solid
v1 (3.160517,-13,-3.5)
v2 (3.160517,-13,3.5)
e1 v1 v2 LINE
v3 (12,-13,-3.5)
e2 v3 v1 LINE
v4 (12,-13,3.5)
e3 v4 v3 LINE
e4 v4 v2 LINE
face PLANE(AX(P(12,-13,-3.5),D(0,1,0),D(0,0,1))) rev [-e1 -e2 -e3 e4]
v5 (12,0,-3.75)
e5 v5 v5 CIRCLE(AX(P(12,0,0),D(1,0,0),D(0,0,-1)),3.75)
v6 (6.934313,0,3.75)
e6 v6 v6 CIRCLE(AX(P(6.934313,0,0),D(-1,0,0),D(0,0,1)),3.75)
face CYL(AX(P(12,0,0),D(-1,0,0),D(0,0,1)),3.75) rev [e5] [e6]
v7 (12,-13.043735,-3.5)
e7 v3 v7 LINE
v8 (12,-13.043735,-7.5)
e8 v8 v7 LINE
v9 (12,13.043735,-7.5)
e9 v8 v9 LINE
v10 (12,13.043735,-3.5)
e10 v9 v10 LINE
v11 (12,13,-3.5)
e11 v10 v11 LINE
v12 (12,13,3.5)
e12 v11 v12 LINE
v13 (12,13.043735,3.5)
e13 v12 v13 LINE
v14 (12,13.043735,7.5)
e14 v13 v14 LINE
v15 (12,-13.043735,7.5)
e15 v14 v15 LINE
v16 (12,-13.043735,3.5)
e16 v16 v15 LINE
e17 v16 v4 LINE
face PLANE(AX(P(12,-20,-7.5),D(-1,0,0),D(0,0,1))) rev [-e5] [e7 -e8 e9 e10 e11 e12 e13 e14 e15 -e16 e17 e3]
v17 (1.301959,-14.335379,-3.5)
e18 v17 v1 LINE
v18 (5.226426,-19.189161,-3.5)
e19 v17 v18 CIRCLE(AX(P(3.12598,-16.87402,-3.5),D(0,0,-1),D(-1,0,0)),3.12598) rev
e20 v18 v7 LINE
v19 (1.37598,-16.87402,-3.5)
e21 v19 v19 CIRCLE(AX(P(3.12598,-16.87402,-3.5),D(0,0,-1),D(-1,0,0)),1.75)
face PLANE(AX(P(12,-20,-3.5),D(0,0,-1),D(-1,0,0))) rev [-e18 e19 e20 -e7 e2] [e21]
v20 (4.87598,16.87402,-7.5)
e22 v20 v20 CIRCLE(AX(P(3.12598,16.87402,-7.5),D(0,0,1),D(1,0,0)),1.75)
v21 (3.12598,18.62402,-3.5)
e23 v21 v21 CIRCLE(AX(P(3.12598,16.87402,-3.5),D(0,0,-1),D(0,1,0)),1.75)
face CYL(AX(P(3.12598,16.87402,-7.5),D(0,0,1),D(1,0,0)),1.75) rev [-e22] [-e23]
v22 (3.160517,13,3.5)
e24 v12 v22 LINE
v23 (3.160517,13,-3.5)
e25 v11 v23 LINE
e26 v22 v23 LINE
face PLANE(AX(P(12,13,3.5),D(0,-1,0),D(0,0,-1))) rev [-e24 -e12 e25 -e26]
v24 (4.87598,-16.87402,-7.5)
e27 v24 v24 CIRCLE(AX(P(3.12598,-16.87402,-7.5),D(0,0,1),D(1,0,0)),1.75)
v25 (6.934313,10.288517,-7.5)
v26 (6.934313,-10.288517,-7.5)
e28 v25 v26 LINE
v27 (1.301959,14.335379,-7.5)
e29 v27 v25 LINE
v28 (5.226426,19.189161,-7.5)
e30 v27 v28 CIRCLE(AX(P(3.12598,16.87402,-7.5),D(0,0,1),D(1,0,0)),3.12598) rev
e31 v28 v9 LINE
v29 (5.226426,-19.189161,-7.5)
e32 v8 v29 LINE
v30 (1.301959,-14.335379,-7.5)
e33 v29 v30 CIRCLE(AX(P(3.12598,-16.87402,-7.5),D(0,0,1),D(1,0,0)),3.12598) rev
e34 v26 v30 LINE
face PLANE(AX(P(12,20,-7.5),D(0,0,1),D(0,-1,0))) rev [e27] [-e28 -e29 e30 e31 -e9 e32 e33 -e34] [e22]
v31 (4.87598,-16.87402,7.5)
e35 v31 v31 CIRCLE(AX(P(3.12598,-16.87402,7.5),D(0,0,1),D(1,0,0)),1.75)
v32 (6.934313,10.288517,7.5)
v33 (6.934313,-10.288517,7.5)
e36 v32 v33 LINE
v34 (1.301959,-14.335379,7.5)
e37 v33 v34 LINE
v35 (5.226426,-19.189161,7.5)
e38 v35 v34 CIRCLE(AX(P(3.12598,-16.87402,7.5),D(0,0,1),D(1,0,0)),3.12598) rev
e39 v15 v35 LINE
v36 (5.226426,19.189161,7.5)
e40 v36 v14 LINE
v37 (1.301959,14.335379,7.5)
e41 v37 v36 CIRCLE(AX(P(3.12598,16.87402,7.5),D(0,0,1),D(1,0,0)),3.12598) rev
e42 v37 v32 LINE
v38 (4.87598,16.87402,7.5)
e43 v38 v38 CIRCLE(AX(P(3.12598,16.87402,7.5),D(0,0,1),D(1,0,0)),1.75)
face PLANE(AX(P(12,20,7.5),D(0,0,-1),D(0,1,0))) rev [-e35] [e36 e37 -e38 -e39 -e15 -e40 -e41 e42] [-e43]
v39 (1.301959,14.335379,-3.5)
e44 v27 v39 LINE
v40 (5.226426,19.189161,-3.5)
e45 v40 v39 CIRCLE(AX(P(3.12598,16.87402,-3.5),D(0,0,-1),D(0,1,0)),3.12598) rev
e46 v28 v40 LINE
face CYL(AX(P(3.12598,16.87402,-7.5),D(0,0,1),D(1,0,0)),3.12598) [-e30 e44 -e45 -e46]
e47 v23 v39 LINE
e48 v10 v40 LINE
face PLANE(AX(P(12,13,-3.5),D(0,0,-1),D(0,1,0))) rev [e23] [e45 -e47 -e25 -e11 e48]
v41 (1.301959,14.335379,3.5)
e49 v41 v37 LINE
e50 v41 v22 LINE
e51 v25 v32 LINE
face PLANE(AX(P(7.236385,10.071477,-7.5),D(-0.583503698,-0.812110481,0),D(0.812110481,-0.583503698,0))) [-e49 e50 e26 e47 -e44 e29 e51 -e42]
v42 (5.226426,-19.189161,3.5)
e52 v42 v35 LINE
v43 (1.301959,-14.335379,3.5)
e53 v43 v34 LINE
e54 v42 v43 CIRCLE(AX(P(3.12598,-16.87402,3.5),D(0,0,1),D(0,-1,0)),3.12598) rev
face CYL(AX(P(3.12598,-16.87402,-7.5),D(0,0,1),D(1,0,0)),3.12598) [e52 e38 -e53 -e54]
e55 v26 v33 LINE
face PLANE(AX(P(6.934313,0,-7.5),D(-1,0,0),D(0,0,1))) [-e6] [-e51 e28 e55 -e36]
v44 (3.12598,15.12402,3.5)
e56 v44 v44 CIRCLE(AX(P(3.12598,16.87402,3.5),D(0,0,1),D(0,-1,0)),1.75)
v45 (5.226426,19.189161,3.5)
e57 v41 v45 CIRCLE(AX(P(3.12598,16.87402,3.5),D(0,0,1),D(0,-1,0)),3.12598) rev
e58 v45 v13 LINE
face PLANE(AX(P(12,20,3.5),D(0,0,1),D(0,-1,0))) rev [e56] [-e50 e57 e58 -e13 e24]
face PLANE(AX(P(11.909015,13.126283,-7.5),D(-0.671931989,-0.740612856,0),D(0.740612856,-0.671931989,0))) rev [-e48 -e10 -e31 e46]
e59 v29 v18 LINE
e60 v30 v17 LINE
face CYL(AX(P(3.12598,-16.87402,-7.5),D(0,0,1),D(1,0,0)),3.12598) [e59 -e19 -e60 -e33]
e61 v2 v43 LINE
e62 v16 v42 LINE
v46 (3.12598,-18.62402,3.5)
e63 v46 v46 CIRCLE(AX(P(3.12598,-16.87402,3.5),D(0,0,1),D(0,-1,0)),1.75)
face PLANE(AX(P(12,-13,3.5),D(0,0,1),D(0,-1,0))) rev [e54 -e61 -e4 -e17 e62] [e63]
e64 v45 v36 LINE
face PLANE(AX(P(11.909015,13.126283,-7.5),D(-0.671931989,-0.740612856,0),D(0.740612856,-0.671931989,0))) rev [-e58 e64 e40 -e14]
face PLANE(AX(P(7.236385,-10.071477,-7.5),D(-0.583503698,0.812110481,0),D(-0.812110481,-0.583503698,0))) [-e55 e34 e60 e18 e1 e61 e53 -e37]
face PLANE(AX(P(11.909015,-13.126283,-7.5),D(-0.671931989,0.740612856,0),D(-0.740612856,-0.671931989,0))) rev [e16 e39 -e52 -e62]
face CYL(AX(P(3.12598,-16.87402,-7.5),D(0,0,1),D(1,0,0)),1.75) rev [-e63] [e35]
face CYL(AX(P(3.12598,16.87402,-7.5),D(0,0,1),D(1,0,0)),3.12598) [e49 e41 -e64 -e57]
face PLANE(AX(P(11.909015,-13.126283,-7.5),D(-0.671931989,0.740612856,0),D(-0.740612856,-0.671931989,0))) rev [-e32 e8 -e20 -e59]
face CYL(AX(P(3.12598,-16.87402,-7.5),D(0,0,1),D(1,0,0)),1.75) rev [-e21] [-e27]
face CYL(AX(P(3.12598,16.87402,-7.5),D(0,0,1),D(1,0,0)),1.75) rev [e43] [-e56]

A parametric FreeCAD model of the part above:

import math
import FreeCAD as App
import Part
import Sketcher

V = App.Vector

doc = App.newDocument("Part")
body = doc.addObject("PartDesign::Body", "Body")

sketch1 = body.newObject("Sketcher::SketchObject", "Sketch")
sketch1.AttachmentSupport = (doc.getObject("YZ_Plane"), [""])
sketch1.MapMode = "FlatFace"
sketch1.addGeometry([
    Part.LineSegment(V(20, 3.5, 0), V(20, 7.5, 0)),
    Part.LineSegment(V(20, 7.5, 0), V(-20, 7.5, 0)),
    Part.LineSegment(V(-20, 7.5, 0), V(-20, 3.5, 0)),
    Part.LineSegment(V(-20, 3.5, 0), V(-13, 3.5, 0)),
    Part.LineSegment(V(-13, 3.5, 0), V(-13, -3.5, 0)),
    Part.LineSegment(V(-13, -3.5, 0), V(-20, -3.5, 0)),
    Part.LineSegment(V(-20, -3.5, 0), V(-20, -7.5, 0)),
    Part.LineSegment(V(-20, -7.5, 0), V(20, -7.5, 0)),
    Part.LineSegment(V(20, -7.5, 0), V(20, -3.5, 0)),
    Part.LineSegment(V(20, -3.5, 0), V(13, -3.5, 0)),
    Part.LineSegment(V(13, -3.5, 0), V(13, 3.5, 0)),
    Part.LineSegment(V(13, 3.5, 0), V(20, 3.5, 0)),
    Part.Circle(V(0, 0, 0), V(0, 0, 1), 3.8),
], False)
sketch1.addConstraint([
    Sketcher.Constraint("Coincident", 0, 2, 1, 1),
    Sketcher.Constraint("Coincident", 1, 2, 2, 1),
    Sketcher.Constraint("Coincident", 2, 2, 3, 1),
    Sketcher.Constraint("Coincident", 3, 2, 4, 1),
    Sketcher.Constraint("Coincident", 4, 2, 5, 1),
    Sketcher.Constraint("Coincident", 5, 2, 6, 1),
    Sketcher.Constraint("Coincident", 6, 2, 7, 1),
    Sketcher.Constraint("Coincident", 7, 2, 8, 1),
    Sketcher.Constraint("Coincident", 8, 2, 9, 1),
    Sketcher.Constraint("Coincident", 9, 2, 10, 1),
    Sketcher.Constraint("Coincident", 10, 2, 11, 1),
    Sketcher.Constraint("Coincident", 11, 2, 0, 1),
    Sketcher.Constraint("Vertical", 0),
    Sketcher.Constraint("Horizontal", 1),
    Sketcher.Constraint("Vertical", 2),
    Sketcher.Constraint("Horizontal", 3),
    Sketcher.Constraint("Vertical", 4),
    Sketcher.Constraint("Horizontal", 5),
    Sketcher.Constraint("Vertical", 6),
    Sketcher.Constraint("Horizontal", 7),
    Sketcher.Constraint("Vertical", 8),
    Sketcher.Constraint("Horizontal", 9),
    Sketcher.Constraint("Vertical", 10),
    Sketcher.Constraint("Horizontal", 11),
    Sketcher.Constraint("Coincident", 12, 3, -1, 1),
    Sketcher.Constraint("Symmetric", 0, 2, 6, 2, -1, 1),
    Sketcher.Constraint("Symmetric", 2, 2, 8, 2, -1, 1),
    Sketcher.Constraint("Symmetric", 4, 2, 10, 2, -1, 1),
    Sketcher.Constraint("Symmetric", 5, 2, 8, 2, -2),
    Sketcher.Constraint("Equal", 11, 4),
    Sketcher.Constraint("Diameter", 12, 7.5),
    Sketcher.Constraint("DistanceX", 1, 2, 1, 1, 40.0),
    Sketcher.Constraint("DistanceX", 3, 1, 3, 2, 7.0),
    Sketcher.Constraint("DistanceY", 0, 1, 0, 2, 4.0),
])
pad1 = body.newObject("PartDesign::Pad", "Pad")
pad1.Profile = sketch1
pad1.Length = 12

sketch2 = body.newObject("Sketcher::SketchObject", "Sketch001")
sketch2.AttachmentSupport = (doc.getObject("XY_Plane"), [""])
sketch2.MapMode = "FlatFace"
sketch2.AttachmentOffset = App.Placement(V(0, 0, 7.5), App.Rotation())
sketch2.addGeometry([
    Part.ArcOfCircle(Part.Circle(V(3.1, 16.9, 0), V(0, 0, 1), 3.1), math.radians(-180), math.radians(-126)),
    Part.LineSegment(V(0, 16.9, 0), V(0, -16.9, 0)),
    Part.ArcOfCircle(Part.Circle(V(3.1, -16.9, 0), V(0, 0, 1), 3.1), math.radians(126), math.radians(180)),
    Part.LineSegment(V(1.3, -14.3, 0), V(6.9, -10.3, 0)),
    Part.LineSegment(V(6.9, -10.3, 0), V(6.9, 10.3, 0)),
    Part.LineSegment(V(6.9, 10.3, 0), V(1.3, 14.3, 0)),
    Part.ArcOfCircle(Part.Circle(V(3.1, 16.9, 0), V(0, 0, 1), 3.1), math.radians(90), math.radians(180)),
    Part.LineSegment(V(3.1, 20, 0), V(0, 20, 0)),
    Part.LineSegment(V(0, 20, 0), V(0, 16.9, 0)),
    Part.Circle(V(3.1, 16.9, 0), V(0, 0, 1), 1.8),
    Part.ArcOfCircle(Part.Circle(V(3.1, 16.9, 0), V(0, 0, 1), 3.1), math.radians(48), math.radians(90)),
    Part.LineSegment(V(5.2, 19.2, 0), V(8.6, 16.1, 0)),
    Part.LineSegment(V(8.6, 16.1, 0), V(12, 13, 0)),
    Part.LineSegment(V(12, 13, 0), V(12, 20, 0)),
    Part.LineSegment(V(12, 20, 0), V(3.1, 20, 0)),
    Part.LineSegment(V(12, -20, 0), V(12, -13, 0)),
    Part.LineSegment(V(12, -13, 0), V(8.6, -16.1, 0)),
    Part.LineSegment(V(8.6, -16.1, 0), V(5.2, -19.2, 0)),
    Part.ArcOfCircle(Part.Circle(V(3.1, -16.9, 0), V(0, 0, 1), 3.1), math.radians(-90), math.radians(-48)),
    Part.LineSegment(V(3.1, -20, 0), V(12, -20, 0)),
    Part.ArcOfCircle(Part.Circle(V(3.1, -16.9, 0), V(0, 0, 1), 3.1), math.radians(-180), math.radians(-90)),
    Part.LineSegment(V(0, -16.9, 0), V(0, -20, 0)),
    Part.LineSegment(V(0, -20, 0), V(3.1, -20, 0)),
    Part.Circle(V(3.1, -16.9, 0), V(0, 0, 1), 1.8),
], False)
sketch2.addConstraint([
    Sketcher.Constraint("Tangent", 0, 1, 1, 1),
    Sketcher.Constraint("Tangent", 1, 2, 2, 2),
    Sketcher.Constraint("Tangent", 2, 1, 3, 1),
    Sketcher.Constraint("Coincident", 3, 2, 4, 1),
    Sketcher.Constraint("Coincident", 4, 2, 5, 1),
    Sketcher.Constraint("Tangent", 5, 2, 0, 2),
    Sketcher.Constraint("Tangent", 6, 1, 7, 1),
    Sketcher.Constraint("Coincident", 7, 2, 8, 1),
    Sketcher.Constraint("Tangent", 8, 2, 6, 2),
    Sketcher.Constraint("Tangent", 10, 1, 11, 1),
    Sketcher.Constraint("Coincident", 11, 2, 12, 1),
    Sketcher.Constraint("Coincident", 12, 2, 13, 1),
    Sketcher.Constraint("Coincident", 13, 2, 14, 1),
    Sketcher.Constraint("Tangent", 14, 2, 10, 2),
    Sketcher.Constraint("Coincident", 15, 2, 16, 1),
    Sketcher.Constraint("Coincident", 16, 2, 17, 1),
    Sketcher.Constraint("Tangent", 17, 2, 18, 2),
    Sketcher.Constraint("Tangent", 18, 1, 19, 1),
    Sketcher.Constraint("Coincident", 19, 2, 15, 1),
    Sketcher.Constraint("Tangent", 20, 1, 21, 1),
    Sketcher.Constraint("Coincident", 21, 2, 22, 1),
    Sketcher.Constraint("Tangent", 22, 2, 20, 2),
    Sketcher.Constraint("Vertical", 1),
    Sketcher.Constraint("Vertical", 4),
    Sketcher.Constraint("Horizontal", 7),
    Sketcher.Constraint("Vertical", 8),
    Sketcher.Constraint("Vertical", 13),
    Sketcher.Constraint("Horizontal", 14),
    Sketcher.Constraint("Vertical", 15),
    Sketcher.Constraint("Horizontal", 19),
    Sketcher.Constraint("Vertical", 21),
    Sketcher.Constraint("Horizontal", 22),
    Sketcher.Constraint("Coincident", 6, 3, 0, 3),
    Sketcher.Constraint("Coincident", 9, 3, 0, 3),
    Sketcher.Constraint("Coincident", 10, 3, 0, 3),
    Sketcher.Constraint("Coincident", 18, 3, 2, 3),
    Sketcher.Constraint("Coincident", 20, 3, 2, 3),
    Sketcher.Constraint("Coincident", 23, 3, 2, 3),
    Sketcher.Constraint("Equal", 0, 2),
    Sketcher.Constraint("Equal", 2, 6),
    Sketcher.Constraint("Equal", 6, 10),
    Sketcher.Constraint("Equal", 10, 18),
    Sketcher.Constraint("Equal", 18, 20),
    Sketcher.Constraint("Equal", 9, 23),
    Sketcher.Constraint("Symmetric", 0, 1, 1, 2, -1, 1),
    Sketcher.Constraint("Symmetric", 12, 2, 15, 2, -1),
    Sketcher.Constraint("Symmetric", 11, 2, 16, 2, -1),
    Sketcher.Constraint("Parallel", 11, 12),
    Sketcher.Constraint("Vertical", 2, 1, 5, 2),
    Sketcher.Constraint("Equal", 11, 12),
    Sketcher.Constraint("Diameter", 9, 3.5),
    Sketcher.Constraint("DistanceY", -1, 1, 6, 1, 20.0),
    Sketcher.Constraint("DistanceX", -1, 1, 12, 2, 12.0),
    Sketcher.Constraint("Radius", 0, 3.12598),
    Sketcher.Constraint("DistanceY", 4, 1, 4, 2, 20.577034),
    Sketcher.Constraint("DistanceY", 13, 1, 13, 2, 6.956265),
    Sketcher.Constraint("DistanceX", -1, 1, 2, 1, 1.301959),
])
pocket1 = body.newObject("PartDesign::Pocket", "Pocket")
pocket1.Profile = sketch2
pocket1.Type = "ThroughAll"

doc.recompute()
